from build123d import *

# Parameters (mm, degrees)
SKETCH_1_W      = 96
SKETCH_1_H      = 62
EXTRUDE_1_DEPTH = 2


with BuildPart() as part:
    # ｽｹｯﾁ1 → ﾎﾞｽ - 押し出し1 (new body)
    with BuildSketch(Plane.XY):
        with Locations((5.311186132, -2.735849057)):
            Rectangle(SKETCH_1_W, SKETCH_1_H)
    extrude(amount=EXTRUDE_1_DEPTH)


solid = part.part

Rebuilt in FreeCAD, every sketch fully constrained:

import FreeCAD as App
import Part
import Sketcher


def add_polygon(sketch, points):
    """Adds a closed chain of lines whose ends are joined by coincident constraints."""
    first, n = sketch.GeometryCount, len(points)
    for a, b in zip(points, points[1:] + points[:1]):
        sketch.addGeometry(Part.LineSegment(App.Vector(*a, 0), App.Vector(*b, 0)), False)
    for i in range(n):
        sketch.addConstraint(Sketcher.Constraint("Coincident", first + i, 2, first + (i + 1) % n, 1))

doc = App.newDocument("Part")
body = doc.addObject("PartDesign::Body", "Body")

# Sketch on XY plane
sketch1 = body.newObject("Sketcher::SketchObject", "Sketch")
sketch1.AttachmentSupport = (doc.getObject("XY_Plane"), [""])
sketch1.MapMode = "FlatFace"
add_polygon(sketch1, [(-42.688814, 28.264151), (-42.688814, -33.735849), (53.311186, -33.735849), (53.311186, 28.264151)])  # lines 0-3
sketch1.addConstraint(Sketcher.Constraint("Vertical", 0))
sketch1.addConstraint(Sketcher.Constraint("Horizontal", 1))
sketch1.addConstraint(Sketcher.Constraint("Vertical", 2))
sketch1.addConstraint(Sketcher.Constraint("Horizontal", 3))
sketch1.addConstraint(Sketcher.Constraint("DistanceX", 1, 1, 1, 2, 96.0))
sketch1.addConstraint(Sketcher.Constraint("DistanceY", 0, 2, 0, 1, 62.0))
sketch1.addConstraint(Sketcher.Constraint("DistanceY", 0, 2, -1, 1, 33.735849))
sketch1.addConstraint(Sketcher.Constraint("DistanceX", 0, 2, -1, 1, 42.688814))
pad1 = body.newObject("PartDesign::Pad", "Pad")
pad1.Profile = sketch1
pad1.Length = 2

doc.recompute()
